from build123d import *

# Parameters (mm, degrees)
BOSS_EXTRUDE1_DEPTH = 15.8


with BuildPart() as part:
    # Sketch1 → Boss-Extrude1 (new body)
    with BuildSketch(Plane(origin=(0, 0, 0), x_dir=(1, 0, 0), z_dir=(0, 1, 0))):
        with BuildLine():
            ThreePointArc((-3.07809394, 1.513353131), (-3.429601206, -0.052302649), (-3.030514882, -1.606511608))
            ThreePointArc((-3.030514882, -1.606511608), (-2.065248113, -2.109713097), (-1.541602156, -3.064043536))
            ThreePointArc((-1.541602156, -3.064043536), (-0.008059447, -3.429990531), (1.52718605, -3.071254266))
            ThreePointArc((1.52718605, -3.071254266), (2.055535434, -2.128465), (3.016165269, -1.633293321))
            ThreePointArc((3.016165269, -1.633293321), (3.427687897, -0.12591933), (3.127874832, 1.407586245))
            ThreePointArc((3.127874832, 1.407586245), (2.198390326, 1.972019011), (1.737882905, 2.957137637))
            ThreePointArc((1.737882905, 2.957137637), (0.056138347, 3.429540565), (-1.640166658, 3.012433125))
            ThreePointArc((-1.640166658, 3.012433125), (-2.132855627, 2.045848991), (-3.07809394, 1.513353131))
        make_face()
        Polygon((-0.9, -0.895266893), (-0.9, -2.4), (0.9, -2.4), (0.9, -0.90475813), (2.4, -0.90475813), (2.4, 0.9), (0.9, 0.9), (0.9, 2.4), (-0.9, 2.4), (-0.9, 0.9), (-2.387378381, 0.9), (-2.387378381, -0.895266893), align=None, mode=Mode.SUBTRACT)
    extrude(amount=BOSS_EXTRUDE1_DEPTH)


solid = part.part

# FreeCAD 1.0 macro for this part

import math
import FreeCAD as App
import Part
import Sketcher
from FreeCAD import Vector


def add_polygon(sketch, points):
    """Adds a closed chain of lines whose ends are joined by coincident constraints."""
    first, n = sketch.GeometryCount, len(points)
    for a, b in zip(points, points[1:] + points[:1]):
        sketch.addGeometry(Part.LineSegment(App.Vector(*a, 0), App.Vector(*b, 0)), False)
    for i in range(n):
        sketch.addConstraint(Sketcher.Constraint("Coincident", first + i, 2, first + (i + 1) % n, 1))

doc = App.newDocument("Part")
body = doc.addObject("PartDesign::Body", "Body")

# Sketch on XZ plane
sketch1 = doc.addObject("Sketcher::SketchObject", "Sketch")
body.addObject(sketch1)
sketch1.AttachmentSupport = (doc.XZ_Plane, [""])
sketch1.MapMode = "FlatFace"
sketch1.addGeometry(Part.ArcOfCircle(Part.Circle(Vector(0, 0, 0), Vector(0, 0, 1), 3.4), math.radians(152), math.radians(206)), False)  # 0
sketch1.addGeometry(Part.ArcOfCircle(Part.Circle(Vector(-3.4, 3.5, 0), Vector(0, 0, 1), 1.9), math.radians(-79), math.radians(-12)), False)  # 1
sketch1.addGeometry(Part.ArcOfCircle(Part.Circle(Vector(0, 0, 0), Vector(0, 0, 1), 3.4), math.radians(64), math.radians(117)), False)  # 2
sketch1.addGeometry(Part.ArcOfCircle(Part.Circle(Vector(3.4, 3.5, 0), Vector(0, 0, 1), 1.9), math.radians(-167), math.radians(-101)), False)  # 3
sketch1.addGeometry(Part.ArcOfCircle(Part.Circle(Vector(0, 0, 0), Vector(0, 0, 1), 3.4), math.radians(-24), math.radians(28)), False)  # 4
sketch1.addGeometry(Part.ArcOfCircle(Part.Circle(Vector(3.6, -3.2, 0), Vector(0, 0, 1), 1.9), math.radians(104), math.radians(172)), False)  # 5
sketch1.addGeometry(Part.ArcOfCircle(Part.Circle(Vector(0, 0, 0), Vector(0, 0, 1), 3.4), math.radians(-119), math.radians(-60)), False)  # 6
sketch1.addGeometry(Part.ArcOfCircle(Part.Circle(Vector(-3.5, -3.3, 0), Vector(0, 0, 1), 1.9), math.radians(10), math.radians(77)), False)  # 7
add_polygon(sketch1, [(-0.9, 2.4), (-0.9, 0.9), (-2.4, 0.9), (-2.4, -0.9), (-0.9, -0.9), (-0.9, -2.4), (0.9, -2.4), (0.9, -0.9), (2.4, -0.9), (2.4, 0.9), (0.9, 0.9), (0.9, 2.4)])  # lines 8-19
sketch1.addConstraint([
    Sketcher.Constraint("Coincident", 0, 1, 1, 1),
    Sketcher.Constraint("Coincident", 1, 2, 2, 2),
    Sketcher.Constraint("Coincident", 2, 1, 3, 1),
    Sketcher.Constraint("Coincident", 3, 2, 4, 2),
    Sketcher.Constraint("Coincident", 4, 1, 5, 1),
    Sketcher.Constraint("Coincident", 5, 2, 6, 2),
    Sketcher.Constraint("Coincident", 6, 1, 7, 1),
    Sketcher.Constraint("Coincident", 7, 2, 0, 2),
    Sketcher.Constraint("Vertical", 8),
    Sketcher.Constraint("Horizontal", 9),
    Sketcher.Constraint("Vertical", 10),
    Sketcher.Constraint("Horizontal", 11),
    Sketcher.Constraint("Vertical", 12),
    Sketcher.Constraint("Horizontal", 13),
    Sketcher.Constraint("Vertical", 14),
    Sketcher.Constraint("Horizontal", 15),
    Sketcher.Constraint("Vertical", 16),
    Sketcher.Constraint("Horizontal", 17),
    Sketcher.Constraint("Vertical", 18),
    Sketcher.Constraint("Horizontal", 19),
    Sketcher.Constraint("Coincident", 0, 3, -1, 1),
    Sketcher.Constraint("Coincident", 2, 3, -1, 1),
    Sketcher.Constraint("Coincident", 4, 3, -1, 1),
    Sketcher.Constraint("Coincident", 6, 3, -1, 1),
    Sketcher.Constraint("Equal", 0, 2),
    Sketcher.Constraint("Equal", 1, 3),
    Sketcher.Constraint("Equal", 2, 4),
    Sketcher.Constraint("Equal", 3, 5),
    Sketcher.Constraint("Equal", 4, 6),
    Sketcher.Constraint("Equal", 5, 7),
    Sketcher.Constraint("Symmetric", 12, 2, 18, 2, -1, 1),
    Sketcher.Constraint("Symmetric", 11, 2, 14, 2, -2),
    Sketcher.Constraint("Vertical", 8, 2, 11, 2),
    Sketcher.Constraint("Equal", 17, 12),
    Sketcher.Constraint("Radius", 0, 3.43),
    Sketcher.Constraint("DistanceX", 13, 1, 13, 2, 1.8),
    Sketcher.Constraint("DistanceX", 15, 1, 15, 2, 1.5),
    Sketcher.Constraint("DistanceY", 10, 2, -1, 1, 0.9),
    Sketcher.Constraint("Radius", 1, 1.876987),
    Sketcher.Constraint("DistanceX", 9, 2, 9, 1, 1.487378),
    Sketcher.Constraint("DistanceY", 16, 1, 16, 2, 1.804758),
    Sketcher.Constraint("DistanceX", 1, 3, 3, 3, 6.737702),
    Sketcher.Constraint("DistanceY", 8, 2, 8, 1, 1.504733),
    Sketcher.Constraint("DistanceX", 1, 3, -1, 1, 3.378268),
    Sketcher.Constraint("DistanceY", 5, 3, -1, 1, 3.225362),
    Sketcher.Constraint("DistanceY", -1, 1, 0, 1, 1.606512),
    Sketcher.Constraint("DistanceY", 1, 3, 3, 3, 0.027622),
    Sketcher.Constraint("DistanceX", 7, 3, 1, 3, 0.109159),
    Sketcher.Constraint("DistanceX", 4, 1, 5, 3, 0.467731),
    Sketcher.Constraint("DistanceX", 7, 3, 6, 1, 1.84726),
])
pad1 = doc.addObject("PartDesign::Pad", "Pad")
body.addObject(pad1)
pad1.Profile = sketch1
pad1.Length = 15.8
pad1.Reversed = True

doc.recompute()
